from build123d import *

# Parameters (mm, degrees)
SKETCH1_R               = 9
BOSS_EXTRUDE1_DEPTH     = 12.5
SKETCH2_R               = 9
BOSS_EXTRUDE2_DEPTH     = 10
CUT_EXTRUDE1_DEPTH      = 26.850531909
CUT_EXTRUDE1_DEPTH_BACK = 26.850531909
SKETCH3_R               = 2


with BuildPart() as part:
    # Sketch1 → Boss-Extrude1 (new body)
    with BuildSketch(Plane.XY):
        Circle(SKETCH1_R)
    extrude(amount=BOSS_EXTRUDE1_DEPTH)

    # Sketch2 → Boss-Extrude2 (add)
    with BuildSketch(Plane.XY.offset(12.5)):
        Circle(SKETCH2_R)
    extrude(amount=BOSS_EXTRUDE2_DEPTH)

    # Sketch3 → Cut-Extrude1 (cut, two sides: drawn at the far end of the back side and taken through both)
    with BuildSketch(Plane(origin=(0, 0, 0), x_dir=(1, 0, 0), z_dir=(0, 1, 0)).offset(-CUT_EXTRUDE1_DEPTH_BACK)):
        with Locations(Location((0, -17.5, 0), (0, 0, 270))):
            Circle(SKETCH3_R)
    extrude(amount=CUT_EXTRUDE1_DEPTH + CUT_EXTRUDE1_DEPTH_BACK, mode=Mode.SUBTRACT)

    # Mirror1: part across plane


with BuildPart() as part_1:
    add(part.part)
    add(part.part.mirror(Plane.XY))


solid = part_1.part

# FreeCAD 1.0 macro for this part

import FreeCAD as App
import Part
import Sketcher

doc = App.newDocument("Part")
body = doc.addObject("PartDesign::Body", "Body")

sketch1 = body.newObject("Sketcher::SketchObject", "Sketch")
sketch1.AttachmentSupport = (doc.getObject("XY_Plane"), [""])
sketch1.MapMode = "FlatFace"
sketch1.addGeometry(Part.Circle(App.Vector(0, 0, 0), App.Vector(0, 0, 1), 9), False)
sketch1.addConstraint([
    Sketcher.Constraint("Coincident", 0, 3, -1, 1),
    Sketcher.Constraint("Diameter", 0, 18.0),
])
pad1 = body.newObject("PartDesign::Pad", "Pad")
pad1.Profile = sketch1
pad1.Length = 12.5

sketch2 = body.newObject("Sketcher::SketchObject", "Sketch001")
sketch2.AttachmentSupport = (doc.getObject("XY_Plane"), [""])
sketch2.MapMode = "FlatFace"
sketch2.AttachmentOffset = App.Placement(App.Vector(0, 0, 12.5), App.Rotation())
sketch2.addGeometry(Part.Circle(App.Vector(0, 0, 0), App.Vector(0, 0, 1), 9), False)
sketch2.addConstraint([
    Sketcher.Constraint("Coincident", 0, 3, -1, 1),
    Sketcher.Constraint("Diameter", 0, 18.0),
])
pad2 = body.newObject("PartDesign::Pad", "Pad001")
pad2.Profile = sketch2
pad2.Length = 10

sketch3 = body.newObject("Sketcher::SketchObject", "Sketch002")
sketch3.AttachmentSupport = (doc.getObject("XZ_Plane"), [""])
sketch3.MapMode = "FlatFace"
sketch3.addGeometry(Part.Circle(App.Vector(0, 17.5, 0), App.Vector(0, 0, 1), 2), False)
sketch3.addConstraint([
    Sketcher.Constraint("PointOnObject", 0, 3, -2),
    Sketcher.Constraint("Diameter", 0, 4.0),
    Sketcher.Constraint("DistanceY", -1, 1, 0, 3, 17.5),
])
pocket1 = body.newObject("PartDesign::Pocket", "Pocket")
pocket1.Profile = sketch3
pocket1.Type = "ThroughAll"
pocket1.Midplane = True
body2 = doc.addObject("PartDesign::Body", "Body001")
doc.recompute()

body2.BaseFeature = body
doc.recompute()

mirroring = doc.addObject("Part::Mirroring", "Mirroring")
mirroring.Source = body
mirroring.Base = App.Vector(0, 0, 0)
mirroring.Normal = App.Vector(0, 0, 1)
body3 = doc.addObject("PartDesign::Body", "Body002")
body3.BaseFeature = mirroring
boolean = body2.newObject("PartDesign::Boolean", "Boolean")
boolean.Type = "Fuse"
boolean.addObjects([body3])
doc.recompute()
mirroring.Visibility = False

doc.recompute()
